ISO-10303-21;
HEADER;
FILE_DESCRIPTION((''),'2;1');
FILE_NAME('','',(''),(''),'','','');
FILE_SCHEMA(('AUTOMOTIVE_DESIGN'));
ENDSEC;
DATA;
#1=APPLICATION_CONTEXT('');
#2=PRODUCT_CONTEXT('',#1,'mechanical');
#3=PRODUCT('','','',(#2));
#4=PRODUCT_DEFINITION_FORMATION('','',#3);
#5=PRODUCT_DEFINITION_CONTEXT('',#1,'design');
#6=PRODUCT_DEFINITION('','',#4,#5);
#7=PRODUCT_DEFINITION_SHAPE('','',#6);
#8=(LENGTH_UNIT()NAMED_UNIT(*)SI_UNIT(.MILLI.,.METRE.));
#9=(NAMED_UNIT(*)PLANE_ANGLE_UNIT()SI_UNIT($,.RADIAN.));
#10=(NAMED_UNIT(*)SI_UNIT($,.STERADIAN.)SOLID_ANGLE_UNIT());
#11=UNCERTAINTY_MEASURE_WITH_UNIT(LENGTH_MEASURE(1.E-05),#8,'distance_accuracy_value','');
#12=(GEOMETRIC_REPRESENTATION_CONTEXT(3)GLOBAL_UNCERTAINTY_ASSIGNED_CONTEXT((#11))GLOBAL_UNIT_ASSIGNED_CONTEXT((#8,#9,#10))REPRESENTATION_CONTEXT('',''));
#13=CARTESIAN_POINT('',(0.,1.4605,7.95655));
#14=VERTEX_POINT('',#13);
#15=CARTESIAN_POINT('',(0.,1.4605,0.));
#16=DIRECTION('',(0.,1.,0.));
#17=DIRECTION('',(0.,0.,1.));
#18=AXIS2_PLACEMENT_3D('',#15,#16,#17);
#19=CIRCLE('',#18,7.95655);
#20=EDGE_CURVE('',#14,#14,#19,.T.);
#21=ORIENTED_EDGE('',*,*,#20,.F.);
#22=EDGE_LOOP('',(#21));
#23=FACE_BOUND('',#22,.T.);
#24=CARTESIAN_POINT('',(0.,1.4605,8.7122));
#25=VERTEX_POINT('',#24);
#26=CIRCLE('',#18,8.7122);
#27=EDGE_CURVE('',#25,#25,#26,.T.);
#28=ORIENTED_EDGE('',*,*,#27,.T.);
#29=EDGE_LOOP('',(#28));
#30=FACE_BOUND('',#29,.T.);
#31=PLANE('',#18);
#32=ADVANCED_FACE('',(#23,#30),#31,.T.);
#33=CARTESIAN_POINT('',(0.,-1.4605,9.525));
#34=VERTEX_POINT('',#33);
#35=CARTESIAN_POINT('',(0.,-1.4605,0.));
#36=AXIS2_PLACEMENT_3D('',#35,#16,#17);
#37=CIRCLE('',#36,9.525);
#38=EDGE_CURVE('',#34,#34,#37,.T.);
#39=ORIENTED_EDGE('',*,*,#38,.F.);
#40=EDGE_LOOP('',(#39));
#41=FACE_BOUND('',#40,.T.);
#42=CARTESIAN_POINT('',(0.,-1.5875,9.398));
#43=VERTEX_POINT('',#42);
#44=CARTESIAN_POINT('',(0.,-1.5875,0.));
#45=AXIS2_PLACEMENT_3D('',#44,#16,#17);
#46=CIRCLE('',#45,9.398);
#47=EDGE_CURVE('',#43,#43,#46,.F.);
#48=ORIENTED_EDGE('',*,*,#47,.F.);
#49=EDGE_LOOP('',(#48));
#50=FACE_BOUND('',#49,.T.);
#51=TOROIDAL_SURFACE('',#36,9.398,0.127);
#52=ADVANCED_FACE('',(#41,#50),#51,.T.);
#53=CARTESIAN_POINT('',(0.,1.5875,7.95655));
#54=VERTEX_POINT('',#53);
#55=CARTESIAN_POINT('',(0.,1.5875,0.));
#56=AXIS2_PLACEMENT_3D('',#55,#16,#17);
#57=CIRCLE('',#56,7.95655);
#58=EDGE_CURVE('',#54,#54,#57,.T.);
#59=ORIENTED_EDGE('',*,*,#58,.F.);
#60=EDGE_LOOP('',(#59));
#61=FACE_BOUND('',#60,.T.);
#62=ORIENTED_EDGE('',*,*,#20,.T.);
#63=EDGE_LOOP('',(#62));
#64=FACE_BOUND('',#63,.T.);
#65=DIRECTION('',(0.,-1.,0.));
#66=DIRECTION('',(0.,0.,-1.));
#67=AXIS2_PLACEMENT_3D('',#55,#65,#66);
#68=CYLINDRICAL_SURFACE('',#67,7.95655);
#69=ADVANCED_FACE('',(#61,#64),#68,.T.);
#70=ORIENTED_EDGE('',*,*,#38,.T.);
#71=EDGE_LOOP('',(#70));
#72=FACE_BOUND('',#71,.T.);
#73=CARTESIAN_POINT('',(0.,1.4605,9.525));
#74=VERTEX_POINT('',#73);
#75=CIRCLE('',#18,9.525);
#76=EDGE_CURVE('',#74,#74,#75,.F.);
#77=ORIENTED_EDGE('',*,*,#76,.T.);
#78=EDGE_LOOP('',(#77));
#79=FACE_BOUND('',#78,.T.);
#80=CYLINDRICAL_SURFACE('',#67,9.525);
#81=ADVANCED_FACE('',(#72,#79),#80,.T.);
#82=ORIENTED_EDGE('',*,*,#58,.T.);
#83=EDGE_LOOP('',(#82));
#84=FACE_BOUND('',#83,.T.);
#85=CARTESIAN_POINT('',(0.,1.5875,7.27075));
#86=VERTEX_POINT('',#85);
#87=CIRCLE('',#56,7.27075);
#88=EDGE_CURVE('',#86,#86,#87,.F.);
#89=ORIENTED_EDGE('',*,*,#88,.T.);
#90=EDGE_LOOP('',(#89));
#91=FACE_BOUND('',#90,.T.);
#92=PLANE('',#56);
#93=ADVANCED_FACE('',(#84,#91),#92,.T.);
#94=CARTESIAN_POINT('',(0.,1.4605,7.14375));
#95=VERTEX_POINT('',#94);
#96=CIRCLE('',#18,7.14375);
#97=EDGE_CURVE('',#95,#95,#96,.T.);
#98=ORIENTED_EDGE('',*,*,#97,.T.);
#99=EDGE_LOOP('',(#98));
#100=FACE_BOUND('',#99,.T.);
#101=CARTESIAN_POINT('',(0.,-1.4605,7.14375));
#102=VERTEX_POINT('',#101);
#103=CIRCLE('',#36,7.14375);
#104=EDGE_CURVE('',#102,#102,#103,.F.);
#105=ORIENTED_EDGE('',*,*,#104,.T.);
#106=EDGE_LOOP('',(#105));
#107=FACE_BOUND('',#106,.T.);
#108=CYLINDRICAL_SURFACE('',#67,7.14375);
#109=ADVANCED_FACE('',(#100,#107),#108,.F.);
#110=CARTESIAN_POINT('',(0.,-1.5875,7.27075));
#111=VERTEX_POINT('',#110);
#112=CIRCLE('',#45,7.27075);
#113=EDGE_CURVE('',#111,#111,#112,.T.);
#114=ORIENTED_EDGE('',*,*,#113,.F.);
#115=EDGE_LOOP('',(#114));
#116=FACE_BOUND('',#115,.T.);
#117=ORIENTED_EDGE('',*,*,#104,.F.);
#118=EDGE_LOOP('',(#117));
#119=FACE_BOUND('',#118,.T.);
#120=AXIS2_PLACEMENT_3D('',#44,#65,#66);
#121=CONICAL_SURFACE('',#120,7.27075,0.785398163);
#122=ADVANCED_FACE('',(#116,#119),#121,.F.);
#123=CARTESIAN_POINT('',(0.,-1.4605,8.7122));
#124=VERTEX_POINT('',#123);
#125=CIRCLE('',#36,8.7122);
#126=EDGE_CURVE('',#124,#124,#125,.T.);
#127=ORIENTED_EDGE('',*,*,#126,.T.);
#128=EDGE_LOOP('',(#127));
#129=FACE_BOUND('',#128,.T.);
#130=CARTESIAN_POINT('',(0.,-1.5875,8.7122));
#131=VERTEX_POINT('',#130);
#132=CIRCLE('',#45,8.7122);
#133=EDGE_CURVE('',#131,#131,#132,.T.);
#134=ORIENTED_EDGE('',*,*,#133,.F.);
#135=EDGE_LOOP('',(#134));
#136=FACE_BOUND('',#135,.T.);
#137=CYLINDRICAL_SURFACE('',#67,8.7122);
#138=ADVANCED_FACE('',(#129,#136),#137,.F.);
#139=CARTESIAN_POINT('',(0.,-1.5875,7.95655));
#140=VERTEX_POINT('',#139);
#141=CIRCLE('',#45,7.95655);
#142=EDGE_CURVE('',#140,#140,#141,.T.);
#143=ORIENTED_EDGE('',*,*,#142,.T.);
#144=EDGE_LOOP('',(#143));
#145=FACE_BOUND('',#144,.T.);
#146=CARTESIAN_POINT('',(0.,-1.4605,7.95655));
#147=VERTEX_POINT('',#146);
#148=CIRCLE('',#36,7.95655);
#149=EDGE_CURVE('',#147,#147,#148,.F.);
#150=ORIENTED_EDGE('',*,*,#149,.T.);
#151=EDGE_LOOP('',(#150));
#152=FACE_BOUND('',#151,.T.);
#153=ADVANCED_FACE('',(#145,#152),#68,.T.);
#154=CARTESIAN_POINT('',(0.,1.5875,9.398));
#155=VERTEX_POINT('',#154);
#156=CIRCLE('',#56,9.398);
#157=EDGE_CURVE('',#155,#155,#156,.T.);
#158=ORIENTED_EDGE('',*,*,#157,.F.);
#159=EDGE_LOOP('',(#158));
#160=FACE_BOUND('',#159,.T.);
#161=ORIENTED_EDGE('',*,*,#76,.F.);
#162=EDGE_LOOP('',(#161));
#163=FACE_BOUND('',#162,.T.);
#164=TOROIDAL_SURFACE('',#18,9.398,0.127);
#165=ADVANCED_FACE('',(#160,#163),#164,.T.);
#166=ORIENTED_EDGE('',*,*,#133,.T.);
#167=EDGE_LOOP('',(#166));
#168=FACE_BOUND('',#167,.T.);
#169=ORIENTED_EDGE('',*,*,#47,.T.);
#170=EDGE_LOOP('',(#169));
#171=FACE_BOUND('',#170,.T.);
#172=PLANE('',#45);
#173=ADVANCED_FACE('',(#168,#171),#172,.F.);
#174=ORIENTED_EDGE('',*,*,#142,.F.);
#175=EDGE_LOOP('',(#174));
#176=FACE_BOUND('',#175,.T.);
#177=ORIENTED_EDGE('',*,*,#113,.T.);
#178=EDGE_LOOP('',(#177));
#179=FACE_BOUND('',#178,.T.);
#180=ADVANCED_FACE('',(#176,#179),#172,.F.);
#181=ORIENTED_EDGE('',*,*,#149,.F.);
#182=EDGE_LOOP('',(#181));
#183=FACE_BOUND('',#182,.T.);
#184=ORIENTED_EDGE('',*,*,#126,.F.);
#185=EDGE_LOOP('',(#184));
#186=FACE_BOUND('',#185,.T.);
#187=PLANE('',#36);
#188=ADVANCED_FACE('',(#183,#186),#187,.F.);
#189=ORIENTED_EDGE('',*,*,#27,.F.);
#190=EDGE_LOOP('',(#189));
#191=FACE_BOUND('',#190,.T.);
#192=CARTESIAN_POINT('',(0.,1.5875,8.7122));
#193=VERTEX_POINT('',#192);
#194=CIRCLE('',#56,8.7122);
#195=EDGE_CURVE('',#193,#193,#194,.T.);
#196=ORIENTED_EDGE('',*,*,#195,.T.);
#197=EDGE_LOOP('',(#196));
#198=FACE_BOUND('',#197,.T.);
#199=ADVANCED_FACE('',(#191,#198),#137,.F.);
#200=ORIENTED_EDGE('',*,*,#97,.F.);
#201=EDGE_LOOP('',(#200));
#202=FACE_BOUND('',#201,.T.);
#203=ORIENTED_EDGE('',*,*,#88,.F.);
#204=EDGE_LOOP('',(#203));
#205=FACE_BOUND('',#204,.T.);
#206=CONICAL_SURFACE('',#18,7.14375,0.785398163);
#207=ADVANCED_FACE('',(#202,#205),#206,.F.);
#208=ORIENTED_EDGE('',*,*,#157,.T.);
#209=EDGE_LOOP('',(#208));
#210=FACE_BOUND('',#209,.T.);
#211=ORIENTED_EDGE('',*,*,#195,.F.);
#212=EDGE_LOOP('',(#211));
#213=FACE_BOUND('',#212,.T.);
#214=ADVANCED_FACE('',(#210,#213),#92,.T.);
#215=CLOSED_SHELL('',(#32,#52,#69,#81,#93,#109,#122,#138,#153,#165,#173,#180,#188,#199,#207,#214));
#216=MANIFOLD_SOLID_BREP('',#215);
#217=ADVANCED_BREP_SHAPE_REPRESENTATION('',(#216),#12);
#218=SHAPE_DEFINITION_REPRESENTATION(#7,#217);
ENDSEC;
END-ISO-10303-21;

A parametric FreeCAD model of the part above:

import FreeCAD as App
import Part
import Sketcher
Q = App.Units.Quantity


def edges_at(feature, points):
    """Names of the edges that pass closest to the given points."""
    edges = feature.Shape.Edges
    near = lambda p: min(range(len(edges)), key=lambda i: edges[i].distToShape(Part.Vertex(*p))[0])
    return sorted({f"Edge{near(p) + 1}" for p in points})

doc = App.newDocument("Part")
body = doc.addObject("PartDesign::Body", "Body")

# Sketch on XZ plane
sketch1 = doc.addObject("Sketcher::SketchObject", "Sketch")
body.addObject(sketch1)
sketch1.AttachmentSupport = (doc.XZ_Plane, [""])
sketch1.MapMode = "FlatFace"
sketch1.addGeometry([
    Part.Circle(App.Vector(0, 0, 0), App.Vector(0, 0, 1), 10),
    Part.Circle(App.Vector(0, 0, 0), App.Vector(0, 0, 1), 9),
], False)
sketch1.addConstraint([
    Sketcher.Constraint("Coincident", 0, 3, -1, 1),
    Sketcher.Constraint("Coincident", 1, 3, -1, 1),
    Sketcher.Constraint("Diameter", 0, Q("0.75 in")),
    Sketcher.Constraint("Diameter", 1, Q("0.686 in")),
])
pad1 = doc.addObject("PartDesign::Pad", "Pad")
body.addObject(pad1)
pad1.Profile = sketch1
pad1.Length = Q("0.125 in")
pad1.Midplane = True
doc.recompute()

fillet = doc.addObject("PartDesign::Fillet", "Fillet")
body.addObject(fillet)
fillet.Base = (pad1, edges_at(pad1, [(-9.525, -1.587, 0), (-9.525, 1.587, 0)]))
fillet.Radius = Q("0.005 in")
body2 = doc.addObject("PartDesign::Body", "Body001")

# Sketch on XZ plane
sketch2 = doc.addObject("Sketcher::SketchObject", "Sketch001")
body2.addObject(sketch2)
sketch2.AttachmentSupport = (doc.getObject("XZ_Plane001"), [""])
sketch2.MapMode = "FlatFace"
sketch2.addGeometry([
    Part.Circle(App.Vector(0, 0, 0), App.Vector(0, 0, 1), 8),
    Part.Circle(App.Vector(0, 0, 0), App.Vector(0, 0, 1), 7),
], False)
sketch2.addConstraint([
    Sketcher.Constraint("Coincident", 0, 3, -1, 1),
    Sketcher.Constraint("Coincident", 1, 3, -1, 1),
    Sketcher.Constraint("Diameter", 1, Q("0.5625 in")),
    Sketcher.Constraint("Diameter", 0, Q("0.6265 in")),
])
pad2 = doc.addObject("PartDesign::Pad", "Pad001")
body2.addObject(pad2)
pad2.Profile = sketch2
pad2.Length = Q("0.125 in")
pad2.Midplane = True
doc.recompute()

chamfer = doc.addObject("PartDesign::Chamfer", "Chamfer")
body2.addObject(chamfer)
chamfer.Base = (pad2, edges_at(pad2, [(-7.144, -1.587, 0), (-7.144, 1.587, 0)]))
chamfer.Size = Q("0.005 in")
body.AllowCompound = True
doc.recompute()

boolean = doc.addObject("PartDesign::Boolean", "Boolean")
body.addObject(boolean)
boolean.Type = "Fuse"
boolean.addObjects([body2])

# Sketch on XZ plane
sketch3 = doc.addObject("Sketcher::SketchObject", "Sketch002")
body.addObject(sketch3)
sketch3.AttachmentSupport = (doc.XZ_Plane, [""])
sketch3.MapMode = "FlatFace"
sketch3.addGeometry([
    Part.Circle(App.Vector(0, 0, 0), App.Vector(0, 0, 1), 9),
    Part.Circle(App.Vector(0, 0, 0), App.Vector(0, 0, 1), 8),
], False)
sketch3.addConstraint([
    Sketcher.Constraint("Coincident", 0, 3, -1, 1),
    Sketcher.Constraint("Coincident", 1, 3, -1, 1),
    Sketcher.Constraint("Diameter", 0, Q("0.686 in")),
    Sketcher.Constraint("Diameter", 1, Q("0.6265 in")),
])
pad3 = doc.addObject("PartDesign::Pad", "Pad002")
body.addObject(pad3)
pad3.Profile = sketch3
pad3.Length = Q("0.115 in")
pad3.Midplane = True

doc.recompute()
